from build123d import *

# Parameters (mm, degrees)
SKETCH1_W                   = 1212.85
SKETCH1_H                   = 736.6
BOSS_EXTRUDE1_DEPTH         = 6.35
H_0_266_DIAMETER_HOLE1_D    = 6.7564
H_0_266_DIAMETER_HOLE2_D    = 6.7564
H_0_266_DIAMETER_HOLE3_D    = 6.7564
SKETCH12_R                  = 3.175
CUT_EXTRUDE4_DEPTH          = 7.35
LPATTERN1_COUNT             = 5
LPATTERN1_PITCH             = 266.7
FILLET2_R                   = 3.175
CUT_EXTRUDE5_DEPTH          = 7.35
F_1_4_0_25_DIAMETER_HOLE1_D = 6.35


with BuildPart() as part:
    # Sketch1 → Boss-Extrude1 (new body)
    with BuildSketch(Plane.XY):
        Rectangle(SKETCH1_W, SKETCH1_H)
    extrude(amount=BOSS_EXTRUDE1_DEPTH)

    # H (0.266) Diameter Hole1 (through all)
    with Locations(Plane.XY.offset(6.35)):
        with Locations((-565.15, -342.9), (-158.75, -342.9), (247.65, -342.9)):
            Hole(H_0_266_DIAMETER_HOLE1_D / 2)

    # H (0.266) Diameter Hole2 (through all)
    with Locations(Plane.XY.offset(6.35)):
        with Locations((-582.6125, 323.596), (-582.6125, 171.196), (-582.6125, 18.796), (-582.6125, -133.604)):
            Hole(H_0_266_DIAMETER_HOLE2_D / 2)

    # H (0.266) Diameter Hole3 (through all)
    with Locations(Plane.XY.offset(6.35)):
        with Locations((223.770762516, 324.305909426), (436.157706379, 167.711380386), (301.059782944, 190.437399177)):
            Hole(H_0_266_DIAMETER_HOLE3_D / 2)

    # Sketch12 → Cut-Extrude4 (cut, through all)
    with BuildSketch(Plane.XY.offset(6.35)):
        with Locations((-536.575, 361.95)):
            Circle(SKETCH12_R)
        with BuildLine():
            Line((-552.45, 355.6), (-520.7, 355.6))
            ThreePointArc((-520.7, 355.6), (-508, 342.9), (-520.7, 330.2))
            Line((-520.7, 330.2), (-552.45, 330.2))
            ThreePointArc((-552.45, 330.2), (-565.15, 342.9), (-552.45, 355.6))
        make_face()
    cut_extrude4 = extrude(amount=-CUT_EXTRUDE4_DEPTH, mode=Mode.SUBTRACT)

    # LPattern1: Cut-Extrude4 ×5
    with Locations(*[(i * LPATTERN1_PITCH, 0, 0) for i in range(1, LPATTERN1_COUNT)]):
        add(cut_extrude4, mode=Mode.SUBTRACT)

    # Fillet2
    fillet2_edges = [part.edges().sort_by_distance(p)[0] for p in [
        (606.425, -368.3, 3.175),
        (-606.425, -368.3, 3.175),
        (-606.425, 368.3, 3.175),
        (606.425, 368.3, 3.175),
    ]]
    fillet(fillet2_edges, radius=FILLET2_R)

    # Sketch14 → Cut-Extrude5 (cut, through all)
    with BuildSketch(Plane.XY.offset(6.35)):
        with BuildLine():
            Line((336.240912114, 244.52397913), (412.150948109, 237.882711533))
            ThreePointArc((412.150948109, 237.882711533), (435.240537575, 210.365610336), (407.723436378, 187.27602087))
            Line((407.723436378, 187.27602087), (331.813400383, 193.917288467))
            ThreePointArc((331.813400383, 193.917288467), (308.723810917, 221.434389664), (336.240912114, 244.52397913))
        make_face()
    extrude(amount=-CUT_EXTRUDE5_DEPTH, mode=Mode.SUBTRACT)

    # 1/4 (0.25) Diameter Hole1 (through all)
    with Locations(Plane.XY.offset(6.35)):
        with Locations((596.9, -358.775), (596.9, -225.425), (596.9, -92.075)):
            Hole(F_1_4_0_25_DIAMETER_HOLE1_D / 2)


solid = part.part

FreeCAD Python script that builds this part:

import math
import FreeCAD as App
import Part
import Sketcher

V = App.Vector
Q = App.Units.Quantity


def edges_at(feature, points):
    """Names of the edges that pass closest to the given points."""
    edges = feature.Shape.Edges
    near = lambda p: min(range(len(edges)), key=lambda i: edges[i].distToShape(Part.Vertex(*p))[0])
    return sorted({f"Edge{near(p) + 1}" for p in points})


def add_polygon(sketch, points):
    """Adds a closed chain of lines whose ends are joined by coincident constraints."""
    first, n = sketch.GeometryCount, len(points)
    for a, b in zip(points, points[1:] + points[:1]):
        sketch.addGeometry(Part.LineSegment(App.Vector(*a, 0), App.Vector(*b, 0)), False)
    for i in range(n):
        sketch.addConstraint(Sketcher.Constraint("Coincident", first + i, 2, first + (i + 1) % n, 1))

doc = App.newDocument("Part")
body = doc.addObject("PartDesign::Body", "Body")

# Sketch on XY plane
sketch1 = body.newObject("Sketcher::SketchObject", "Sketch")
sketch1.AttachmentSupport = (doc.getObject("XY_Plane"), [""])
sketch1.MapMode = "FlatFace"
add_polygon(sketch1, [(-606, 368), (-606, -368), (606, -368), (606, 368)])  # lines 0-3
sketch1.addConstraint([
    Sketcher.Constraint("Vertical", 0),
    Sketcher.Constraint("Horizontal", 1),
    Sketcher.Constraint("Vertical", 2),
    Sketcher.Constraint("Horizontal", 3),
    Sketcher.Constraint("Symmetric", 0, 2, 2, 2, -1, 1),
    Sketcher.Constraint("DistanceY", 0, 2, 0, 1, Q("29 in")),
    Sketcher.Constraint("DistanceX", 1, 1, 1, 2, Q("47.75 in")),
])
pad1 = body.newObject("PartDesign::Pad", "Pad")
pad1.Profile = sketch1
pad1.Length = Q("0.25 in")

# Sketch on XY plane
sketch2 = body.newObject("Sketcher::SketchObject", "Sketch001")
sketch2.AttachmentSupport = (doc.getObject("XY_Plane"), [""])
sketch2.MapMode = "FlatFace"
sketch2.AttachmentOffset = App.Placement(V(0, 0, 0.25 * 25.4), App.Rotation())
sketch2.addGeometry([
    Part.Circle(V(-565.1, -342.9, 0), V(0, 0, 1), 3.4),
    Part.Circle(V(-158.8, -342.9, 0), V(0, 0, 1), 3.4),
    Part.Circle(V(247.7, -342.9, 0), V(0, 0, 1), 3.4),
], False)
sketch2.addConstraint([
    Sketcher.Constraint("Equal", 0, 1),
    Sketcher.Constraint("Equal", 1, 2),
    Sketcher.Constraint("Horizontal", 0, 3, 1, 3),
    Sketcher.Constraint("Horizontal", 1, 3, 2, 3),
    Sketcher.Constraint("Diameter", 0, Q("0.266 in")),
    Sketcher.Constraint("DistanceX", 0, 3, 1, 3, Q("16 in")),
    Sketcher.Constraint("DistanceX", 1, 3, 2, 3, Q("16 in")),
    Sketcher.Constraint("DistanceY", 0, 3, -1, 1, Q("13.5 in")),
    Sketcher.Constraint("DistanceX", 0, 3, -1, 1, Q("22.25 in")),
])
doc.recompute()
hole = body.newObject("PartDesign::Hole", "Hole")
hole.Profile = sketch2
hole.ThreadType = "None"
hole.Diameter = Q("0.266 in")
hole.DepthType = "ThroughAll"

# Sketch on XY plane
sketch3 = body.newObject("Sketcher::SketchObject", "Sketch002")
sketch3.AttachmentSupport = (doc.getObject("XY_Plane"), [""])
sketch3.MapMode = "FlatFace"
sketch3.AttachmentOffset = App.Placement(V(0, 0, 0.25 * 25.4), App.Rotation())
sketch3.addGeometry([
    Part.Circle(V(-582.6, 323.6, 0), V(0, 0, 1), 3.4),
    Part.Circle(V(-582.6, 171.2, 0), V(0, 0, 1), 3.4),
    Part.Circle(V(-582.6, 18.8, 0), V(0, 0, 1), 3.4),
    Part.Circle(V(-582.6, -133.6, 0), V(0, 0, 1), 3.4),
], False)
sketch3.addConstraint([
    Sketcher.Constraint("Equal", 0, 1),
    Sketcher.Constraint("Equal", 1, 2),
    Sketcher.Constraint("Equal", 2, 3),
    Sketcher.Constraint("Vertical", 0, 3, 1, 3),
    Sketcher.Constraint("Vertical", 1, 3, 2, 3),
    Sketcher.Constraint("Vertical", 2, 3, 3, 3),
    Sketcher.Constraint("Diameter", 0, Q("0.266 in")),
    Sketcher.Constraint("DistanceY", 1, 3, 0, 3, Q("6 in")),
    Sketcher.Constraint("DistanceY", 2, 3, 1, 3, Q("6 in")),
    Sketcher.Constraint("DistanceY", 3, 3, 2, 3, Q("6 in")),
    Sketcher.Constraint("DistanceY", -1, 1, 0, 3, Q("12.74 in")),
    Sketcher.Constraint("DistanceX", 0, 3, -1, 1, Q("22.9375 in")),
])
doc.recompute()
hole2 = body.newObject("PartDesign::Hole", "Hole001")
hole2.Profile = sketch3
hole2.ThreadType = "None"
hole2.Diameter = Q("0.266 in")
hole2.DepthType = "ThroughAll"

# Sketch on XY plane
sketch4 = body.newObject("Sketcher::SketchObject", "Sketch003")
sketch4.AttachmentSupport = (doc.getObject("XY_Plane"), [""])
sketch4.MapMode = "FlatFace"
sketch4.AttachmentOffset = App.Placement(V(0, 0, 0.25 * 25.4), App.Rotation())
sketch4.addGeometry([
    Part.Circle(V(223.8, 324.3, 0), V(0, 0, 1), 3.4),
    Part.Circle(V(436.2, 167.7, 0), V(0, 0, 1), 3.4),
    Part.Circle(V(301.1, 190.4, 0), V(0, 0, 1), 3.4),
], False)
sketch4.addConstraint([
    Sketcher.Constraint("Equal", 0, 1),
    Sketcher.Constraint("Equal", 1, 2),
    Sketcher.Constraint("Diameter", 0, Q("0.266 in")),
    Sketcher.Constraint("DistanceY", -1, 1, 2, 3, Q("190.437399 mm")),
    Sketcher.Constraint("DistanceY", -1, 1, 0, 3, Q("324.305909 mm")),
    Sketcher.Constraint("DistanceY", -1, 1, 1, 3, Q("167.71138 mm")),
    Sketcher.Constraint("DistanceX", 0, 3, 2, 3, Q("77.28902 mm")),
    Sketcher.Constraint("DistanceX", -1, 1, 0, 3, Q("223.770763 mm")),
    Sketcher.Constraint("DistanceX", -1, 1, 1, 3, Q("436.157706 mm")),
])
doc.recompute()
hole3 = body.newObject("PartDesign::Hole", "Hole002")
hole3.Profile = sketch4
hole3.ThreadType = "None"
hole3.Diameter = Q("0.266 in")
hole3.DepthType = "ThroughAll"

# Sketch on XY plane
sketch5 = body.newObject("Sketcher::SketchObject", "Sketch004")
sketch5.AttachmentSupport = (doc.getObject("XY_Plane"), [""])
sketch5.MapMode = "FlatFace"
sketch5.AttachmentOffset = App.Placement(V(0, 0, 0.25 * 25.4), App.Rotation())
sketch5.addGeometry([
    Part.Circle(V(-536.6, 361.9, 0), V(0, 0, 1), 3.2),  # 0
    Part.LineSegment(V(-520.7, 355.6, 0), V(-552.5, 355.6, 0)),  # 1
    Part.ArcOfCircle(Part.Circle(V(-552.5, 342.9, 0), V(0, 0, 1), 12.7), math.radians(90), math.radians(270)),  # 2
    Part.LineSegment(V(-552.5, 330.2, 0), V(-520.7, 330.2, 0)),  # 3
    Part.ArcOfCircle(Part.Circle(V(-520.7, 342.9, 0), V(0, 0, 1), 12.7), math.radians(-90), math.radians(90)),  # 4
], False)
sketch5.addConstraint([
    Sketcher.Constraint("Tangent", 1, 2, 2, 1),
    Sketcher.Constraint("Tangent", 2, 2, 3, 1),
    Sketcher.Constraint("Tangent", 3, 2, 4, 1),
    Sketcher.Constraint("Tangent", 4, 2, 1, 1),
    Sketcher.Constraint("Horizontal", 1),
    Sketcher.Constraint("Horizontal", 3),
    Sketcher.Constraint("Radius", 2, Q("0.5 in")),
    Sketcher.Constraint("Diameter", 0, Q("0.25 in")),
    Sketcher.Constraint("DistanceY", -1, 1, 1, 2, Q("14 in")),
    Sketcher.Constraint("DistanceX", 1, 2, 1, 1, Q("1.25 in")),
    Sketcher.Constraint("DistanceX", 4, 3, -1, 1, Q("20.5 in")),
    Sketcher.Constraint("DistanceY", -1, 1, 0, 3, Q("14.25 in")),
    Sketcher.Constraint("DistanceX", 0, 3, -1, 1, Q("21.125 in")),
])
pocket1 = body.newObject("PartDesign::Pocket", "Pocket")
pocket1.Profile = sketch5
pocket1.Type = "ThroughAll"
doc.recompute()

linearpattern = body.newObject("PartDesign::LinearPattern", "LinearPattern")
linearpattern.Originals = [pocket1]
linearpattern.Direction = (doc.getObject("X_Axis"), [""])
linearpattern.Mode = "offset"
linearpattern.Offset = Q("10.5 in")
linearpattern.Occurrences = 5
body.Tip = linearpattern
doc.recompute()

fillet = body.newObject("PartDesign::Fillet", "Fillet")
fillet.Base = (linearpattern, edges_at(linearpattern, [
    (606.425, -368.3, 3.175),
    (-606.425, -368.3, 3.175),
    (-606.425, 368.3, 3.175),
    (606.425, 368.3, 3.175),
]))
fillet.Radius = Q("0.125 in")

# Sketch on XY plane
sketch6 = body.newObject("Sketcher::SketchObject", "Sketch005")
sketch6.AttachmentSupport = (doc.getObject("XY_Plane"), [""])
sketch6.MapMode = "FlatFace"
sketch6.AttachmentOffset = App.Placement(V(0, 0, 0.25 * 25.4), App.Rotation())
sketch6.addGeometry([
    Part.LineSegment(V(412, 238, 0), V(336, 245, 0)),
    Part.ArcOfCircle(Part.Circle(V(334, 219, 0), V(0, 0, 1), 25), math.radians(85), math.radians(265)),
    Part.LineSegment(V(332, 194, 0), V(408, 187, 0)),
    Part.ArcOfCircle(Part.Circle(V(410, 213, 0), V(0, 0, 1), 25), math.radians(-95), math.radians(85)),
], False)
sketch6.addConstraint([
    Sketcher.Constraint("Tangent", 0, 2, 1, 1),
    Sketcher.Constraint("Tangent", 1, 2, 2, 1),
    Sketcher.Constraint("Tangent", 2, 2, 3, 1),
    Sketcher.Constraint("Tangent", 3, 2, 0, 1),
    Sketcher.Constraint("Equal", 1, 3),
    Sketcher.Constraint("Radius", 1, Q("1 in")),
    Sketcher.Constraint("Distance", 0, Q("3 in")),
    Sketcher.Constraint("Angle", 0, Q("175 deg")),
    Sketcher.Constraint("DistanceX", -1, 1, 1, 2, Q("331.8134 mm")),
    Sketcher.Constraint("DistanceY", -1, 1, 0, 2, Q("244.523979 mm")),
])
pocket2 = body.newObject("PartDesign::Pocket", "Pocket001")
pocket2.Profile = sketch6
pocket2.Type = "ThroughAll"

# Sketch on XY plane
sketch7 = body.newObject("Sketcher::SketchObject", "Sketch006")
sketch7.AttachmentSupport = (doc.getObject("XY_Plane"), [""])
sketch7.MapMode = "FlatFace"
sketch7.AttachmentOffset = App.Placement(V(0, 0, 0.25 * 25.4), App.Rotation())
sketch7.addGeometry([
    Part.Circle(V(596.9, -358.8, 0), V(0, 0, 1), 3.2),
    Part.Circle(V(596.9, -225.4, 0), V(0, 0, 1), 3.2),
    Part.Circle(V(596.9, -92.1, 0), V(0, 0, 1), 3.2),
], False)
sketch7.addConstraint([
    Sketcher.Constraint("Equal", 0, 1),
    Sketcher.Constraint("Equal", 1, 2),
    Sketcher.Constraint("Vertical", 0, 3, 1, 3),
    Sketcher.Constraint("Vertical", 1, 3, 2, 3),
    Sketcher.Constraint("Diameter", 0, Q("0.25 in")),
    Sketcher.Constraint("DistanceX", -1, 1, 0, 3, Q("23.5 in")),
    Sketcher.Constraint("DistanceY", 0, 3, 2, 3, Q("10.5 in")),
    Sketcher.Constraint("DistanceY", 0, 3, 1, 3, Q("5.25 in")),
    Sketcher.Constraint("DistanceY", 0, 3, -1, 1, Q("14.125 in")),
])
doc.recompute()
hole4 = body.newObject("PartDesign::Hole", "Hole003")
hole4.Profile = sketch7
hole4.ThreadType = "None"
hole4.Diameter = Q("0.25 in")
hole4.DepthType = "ThroughAll"

doc.recompute()
